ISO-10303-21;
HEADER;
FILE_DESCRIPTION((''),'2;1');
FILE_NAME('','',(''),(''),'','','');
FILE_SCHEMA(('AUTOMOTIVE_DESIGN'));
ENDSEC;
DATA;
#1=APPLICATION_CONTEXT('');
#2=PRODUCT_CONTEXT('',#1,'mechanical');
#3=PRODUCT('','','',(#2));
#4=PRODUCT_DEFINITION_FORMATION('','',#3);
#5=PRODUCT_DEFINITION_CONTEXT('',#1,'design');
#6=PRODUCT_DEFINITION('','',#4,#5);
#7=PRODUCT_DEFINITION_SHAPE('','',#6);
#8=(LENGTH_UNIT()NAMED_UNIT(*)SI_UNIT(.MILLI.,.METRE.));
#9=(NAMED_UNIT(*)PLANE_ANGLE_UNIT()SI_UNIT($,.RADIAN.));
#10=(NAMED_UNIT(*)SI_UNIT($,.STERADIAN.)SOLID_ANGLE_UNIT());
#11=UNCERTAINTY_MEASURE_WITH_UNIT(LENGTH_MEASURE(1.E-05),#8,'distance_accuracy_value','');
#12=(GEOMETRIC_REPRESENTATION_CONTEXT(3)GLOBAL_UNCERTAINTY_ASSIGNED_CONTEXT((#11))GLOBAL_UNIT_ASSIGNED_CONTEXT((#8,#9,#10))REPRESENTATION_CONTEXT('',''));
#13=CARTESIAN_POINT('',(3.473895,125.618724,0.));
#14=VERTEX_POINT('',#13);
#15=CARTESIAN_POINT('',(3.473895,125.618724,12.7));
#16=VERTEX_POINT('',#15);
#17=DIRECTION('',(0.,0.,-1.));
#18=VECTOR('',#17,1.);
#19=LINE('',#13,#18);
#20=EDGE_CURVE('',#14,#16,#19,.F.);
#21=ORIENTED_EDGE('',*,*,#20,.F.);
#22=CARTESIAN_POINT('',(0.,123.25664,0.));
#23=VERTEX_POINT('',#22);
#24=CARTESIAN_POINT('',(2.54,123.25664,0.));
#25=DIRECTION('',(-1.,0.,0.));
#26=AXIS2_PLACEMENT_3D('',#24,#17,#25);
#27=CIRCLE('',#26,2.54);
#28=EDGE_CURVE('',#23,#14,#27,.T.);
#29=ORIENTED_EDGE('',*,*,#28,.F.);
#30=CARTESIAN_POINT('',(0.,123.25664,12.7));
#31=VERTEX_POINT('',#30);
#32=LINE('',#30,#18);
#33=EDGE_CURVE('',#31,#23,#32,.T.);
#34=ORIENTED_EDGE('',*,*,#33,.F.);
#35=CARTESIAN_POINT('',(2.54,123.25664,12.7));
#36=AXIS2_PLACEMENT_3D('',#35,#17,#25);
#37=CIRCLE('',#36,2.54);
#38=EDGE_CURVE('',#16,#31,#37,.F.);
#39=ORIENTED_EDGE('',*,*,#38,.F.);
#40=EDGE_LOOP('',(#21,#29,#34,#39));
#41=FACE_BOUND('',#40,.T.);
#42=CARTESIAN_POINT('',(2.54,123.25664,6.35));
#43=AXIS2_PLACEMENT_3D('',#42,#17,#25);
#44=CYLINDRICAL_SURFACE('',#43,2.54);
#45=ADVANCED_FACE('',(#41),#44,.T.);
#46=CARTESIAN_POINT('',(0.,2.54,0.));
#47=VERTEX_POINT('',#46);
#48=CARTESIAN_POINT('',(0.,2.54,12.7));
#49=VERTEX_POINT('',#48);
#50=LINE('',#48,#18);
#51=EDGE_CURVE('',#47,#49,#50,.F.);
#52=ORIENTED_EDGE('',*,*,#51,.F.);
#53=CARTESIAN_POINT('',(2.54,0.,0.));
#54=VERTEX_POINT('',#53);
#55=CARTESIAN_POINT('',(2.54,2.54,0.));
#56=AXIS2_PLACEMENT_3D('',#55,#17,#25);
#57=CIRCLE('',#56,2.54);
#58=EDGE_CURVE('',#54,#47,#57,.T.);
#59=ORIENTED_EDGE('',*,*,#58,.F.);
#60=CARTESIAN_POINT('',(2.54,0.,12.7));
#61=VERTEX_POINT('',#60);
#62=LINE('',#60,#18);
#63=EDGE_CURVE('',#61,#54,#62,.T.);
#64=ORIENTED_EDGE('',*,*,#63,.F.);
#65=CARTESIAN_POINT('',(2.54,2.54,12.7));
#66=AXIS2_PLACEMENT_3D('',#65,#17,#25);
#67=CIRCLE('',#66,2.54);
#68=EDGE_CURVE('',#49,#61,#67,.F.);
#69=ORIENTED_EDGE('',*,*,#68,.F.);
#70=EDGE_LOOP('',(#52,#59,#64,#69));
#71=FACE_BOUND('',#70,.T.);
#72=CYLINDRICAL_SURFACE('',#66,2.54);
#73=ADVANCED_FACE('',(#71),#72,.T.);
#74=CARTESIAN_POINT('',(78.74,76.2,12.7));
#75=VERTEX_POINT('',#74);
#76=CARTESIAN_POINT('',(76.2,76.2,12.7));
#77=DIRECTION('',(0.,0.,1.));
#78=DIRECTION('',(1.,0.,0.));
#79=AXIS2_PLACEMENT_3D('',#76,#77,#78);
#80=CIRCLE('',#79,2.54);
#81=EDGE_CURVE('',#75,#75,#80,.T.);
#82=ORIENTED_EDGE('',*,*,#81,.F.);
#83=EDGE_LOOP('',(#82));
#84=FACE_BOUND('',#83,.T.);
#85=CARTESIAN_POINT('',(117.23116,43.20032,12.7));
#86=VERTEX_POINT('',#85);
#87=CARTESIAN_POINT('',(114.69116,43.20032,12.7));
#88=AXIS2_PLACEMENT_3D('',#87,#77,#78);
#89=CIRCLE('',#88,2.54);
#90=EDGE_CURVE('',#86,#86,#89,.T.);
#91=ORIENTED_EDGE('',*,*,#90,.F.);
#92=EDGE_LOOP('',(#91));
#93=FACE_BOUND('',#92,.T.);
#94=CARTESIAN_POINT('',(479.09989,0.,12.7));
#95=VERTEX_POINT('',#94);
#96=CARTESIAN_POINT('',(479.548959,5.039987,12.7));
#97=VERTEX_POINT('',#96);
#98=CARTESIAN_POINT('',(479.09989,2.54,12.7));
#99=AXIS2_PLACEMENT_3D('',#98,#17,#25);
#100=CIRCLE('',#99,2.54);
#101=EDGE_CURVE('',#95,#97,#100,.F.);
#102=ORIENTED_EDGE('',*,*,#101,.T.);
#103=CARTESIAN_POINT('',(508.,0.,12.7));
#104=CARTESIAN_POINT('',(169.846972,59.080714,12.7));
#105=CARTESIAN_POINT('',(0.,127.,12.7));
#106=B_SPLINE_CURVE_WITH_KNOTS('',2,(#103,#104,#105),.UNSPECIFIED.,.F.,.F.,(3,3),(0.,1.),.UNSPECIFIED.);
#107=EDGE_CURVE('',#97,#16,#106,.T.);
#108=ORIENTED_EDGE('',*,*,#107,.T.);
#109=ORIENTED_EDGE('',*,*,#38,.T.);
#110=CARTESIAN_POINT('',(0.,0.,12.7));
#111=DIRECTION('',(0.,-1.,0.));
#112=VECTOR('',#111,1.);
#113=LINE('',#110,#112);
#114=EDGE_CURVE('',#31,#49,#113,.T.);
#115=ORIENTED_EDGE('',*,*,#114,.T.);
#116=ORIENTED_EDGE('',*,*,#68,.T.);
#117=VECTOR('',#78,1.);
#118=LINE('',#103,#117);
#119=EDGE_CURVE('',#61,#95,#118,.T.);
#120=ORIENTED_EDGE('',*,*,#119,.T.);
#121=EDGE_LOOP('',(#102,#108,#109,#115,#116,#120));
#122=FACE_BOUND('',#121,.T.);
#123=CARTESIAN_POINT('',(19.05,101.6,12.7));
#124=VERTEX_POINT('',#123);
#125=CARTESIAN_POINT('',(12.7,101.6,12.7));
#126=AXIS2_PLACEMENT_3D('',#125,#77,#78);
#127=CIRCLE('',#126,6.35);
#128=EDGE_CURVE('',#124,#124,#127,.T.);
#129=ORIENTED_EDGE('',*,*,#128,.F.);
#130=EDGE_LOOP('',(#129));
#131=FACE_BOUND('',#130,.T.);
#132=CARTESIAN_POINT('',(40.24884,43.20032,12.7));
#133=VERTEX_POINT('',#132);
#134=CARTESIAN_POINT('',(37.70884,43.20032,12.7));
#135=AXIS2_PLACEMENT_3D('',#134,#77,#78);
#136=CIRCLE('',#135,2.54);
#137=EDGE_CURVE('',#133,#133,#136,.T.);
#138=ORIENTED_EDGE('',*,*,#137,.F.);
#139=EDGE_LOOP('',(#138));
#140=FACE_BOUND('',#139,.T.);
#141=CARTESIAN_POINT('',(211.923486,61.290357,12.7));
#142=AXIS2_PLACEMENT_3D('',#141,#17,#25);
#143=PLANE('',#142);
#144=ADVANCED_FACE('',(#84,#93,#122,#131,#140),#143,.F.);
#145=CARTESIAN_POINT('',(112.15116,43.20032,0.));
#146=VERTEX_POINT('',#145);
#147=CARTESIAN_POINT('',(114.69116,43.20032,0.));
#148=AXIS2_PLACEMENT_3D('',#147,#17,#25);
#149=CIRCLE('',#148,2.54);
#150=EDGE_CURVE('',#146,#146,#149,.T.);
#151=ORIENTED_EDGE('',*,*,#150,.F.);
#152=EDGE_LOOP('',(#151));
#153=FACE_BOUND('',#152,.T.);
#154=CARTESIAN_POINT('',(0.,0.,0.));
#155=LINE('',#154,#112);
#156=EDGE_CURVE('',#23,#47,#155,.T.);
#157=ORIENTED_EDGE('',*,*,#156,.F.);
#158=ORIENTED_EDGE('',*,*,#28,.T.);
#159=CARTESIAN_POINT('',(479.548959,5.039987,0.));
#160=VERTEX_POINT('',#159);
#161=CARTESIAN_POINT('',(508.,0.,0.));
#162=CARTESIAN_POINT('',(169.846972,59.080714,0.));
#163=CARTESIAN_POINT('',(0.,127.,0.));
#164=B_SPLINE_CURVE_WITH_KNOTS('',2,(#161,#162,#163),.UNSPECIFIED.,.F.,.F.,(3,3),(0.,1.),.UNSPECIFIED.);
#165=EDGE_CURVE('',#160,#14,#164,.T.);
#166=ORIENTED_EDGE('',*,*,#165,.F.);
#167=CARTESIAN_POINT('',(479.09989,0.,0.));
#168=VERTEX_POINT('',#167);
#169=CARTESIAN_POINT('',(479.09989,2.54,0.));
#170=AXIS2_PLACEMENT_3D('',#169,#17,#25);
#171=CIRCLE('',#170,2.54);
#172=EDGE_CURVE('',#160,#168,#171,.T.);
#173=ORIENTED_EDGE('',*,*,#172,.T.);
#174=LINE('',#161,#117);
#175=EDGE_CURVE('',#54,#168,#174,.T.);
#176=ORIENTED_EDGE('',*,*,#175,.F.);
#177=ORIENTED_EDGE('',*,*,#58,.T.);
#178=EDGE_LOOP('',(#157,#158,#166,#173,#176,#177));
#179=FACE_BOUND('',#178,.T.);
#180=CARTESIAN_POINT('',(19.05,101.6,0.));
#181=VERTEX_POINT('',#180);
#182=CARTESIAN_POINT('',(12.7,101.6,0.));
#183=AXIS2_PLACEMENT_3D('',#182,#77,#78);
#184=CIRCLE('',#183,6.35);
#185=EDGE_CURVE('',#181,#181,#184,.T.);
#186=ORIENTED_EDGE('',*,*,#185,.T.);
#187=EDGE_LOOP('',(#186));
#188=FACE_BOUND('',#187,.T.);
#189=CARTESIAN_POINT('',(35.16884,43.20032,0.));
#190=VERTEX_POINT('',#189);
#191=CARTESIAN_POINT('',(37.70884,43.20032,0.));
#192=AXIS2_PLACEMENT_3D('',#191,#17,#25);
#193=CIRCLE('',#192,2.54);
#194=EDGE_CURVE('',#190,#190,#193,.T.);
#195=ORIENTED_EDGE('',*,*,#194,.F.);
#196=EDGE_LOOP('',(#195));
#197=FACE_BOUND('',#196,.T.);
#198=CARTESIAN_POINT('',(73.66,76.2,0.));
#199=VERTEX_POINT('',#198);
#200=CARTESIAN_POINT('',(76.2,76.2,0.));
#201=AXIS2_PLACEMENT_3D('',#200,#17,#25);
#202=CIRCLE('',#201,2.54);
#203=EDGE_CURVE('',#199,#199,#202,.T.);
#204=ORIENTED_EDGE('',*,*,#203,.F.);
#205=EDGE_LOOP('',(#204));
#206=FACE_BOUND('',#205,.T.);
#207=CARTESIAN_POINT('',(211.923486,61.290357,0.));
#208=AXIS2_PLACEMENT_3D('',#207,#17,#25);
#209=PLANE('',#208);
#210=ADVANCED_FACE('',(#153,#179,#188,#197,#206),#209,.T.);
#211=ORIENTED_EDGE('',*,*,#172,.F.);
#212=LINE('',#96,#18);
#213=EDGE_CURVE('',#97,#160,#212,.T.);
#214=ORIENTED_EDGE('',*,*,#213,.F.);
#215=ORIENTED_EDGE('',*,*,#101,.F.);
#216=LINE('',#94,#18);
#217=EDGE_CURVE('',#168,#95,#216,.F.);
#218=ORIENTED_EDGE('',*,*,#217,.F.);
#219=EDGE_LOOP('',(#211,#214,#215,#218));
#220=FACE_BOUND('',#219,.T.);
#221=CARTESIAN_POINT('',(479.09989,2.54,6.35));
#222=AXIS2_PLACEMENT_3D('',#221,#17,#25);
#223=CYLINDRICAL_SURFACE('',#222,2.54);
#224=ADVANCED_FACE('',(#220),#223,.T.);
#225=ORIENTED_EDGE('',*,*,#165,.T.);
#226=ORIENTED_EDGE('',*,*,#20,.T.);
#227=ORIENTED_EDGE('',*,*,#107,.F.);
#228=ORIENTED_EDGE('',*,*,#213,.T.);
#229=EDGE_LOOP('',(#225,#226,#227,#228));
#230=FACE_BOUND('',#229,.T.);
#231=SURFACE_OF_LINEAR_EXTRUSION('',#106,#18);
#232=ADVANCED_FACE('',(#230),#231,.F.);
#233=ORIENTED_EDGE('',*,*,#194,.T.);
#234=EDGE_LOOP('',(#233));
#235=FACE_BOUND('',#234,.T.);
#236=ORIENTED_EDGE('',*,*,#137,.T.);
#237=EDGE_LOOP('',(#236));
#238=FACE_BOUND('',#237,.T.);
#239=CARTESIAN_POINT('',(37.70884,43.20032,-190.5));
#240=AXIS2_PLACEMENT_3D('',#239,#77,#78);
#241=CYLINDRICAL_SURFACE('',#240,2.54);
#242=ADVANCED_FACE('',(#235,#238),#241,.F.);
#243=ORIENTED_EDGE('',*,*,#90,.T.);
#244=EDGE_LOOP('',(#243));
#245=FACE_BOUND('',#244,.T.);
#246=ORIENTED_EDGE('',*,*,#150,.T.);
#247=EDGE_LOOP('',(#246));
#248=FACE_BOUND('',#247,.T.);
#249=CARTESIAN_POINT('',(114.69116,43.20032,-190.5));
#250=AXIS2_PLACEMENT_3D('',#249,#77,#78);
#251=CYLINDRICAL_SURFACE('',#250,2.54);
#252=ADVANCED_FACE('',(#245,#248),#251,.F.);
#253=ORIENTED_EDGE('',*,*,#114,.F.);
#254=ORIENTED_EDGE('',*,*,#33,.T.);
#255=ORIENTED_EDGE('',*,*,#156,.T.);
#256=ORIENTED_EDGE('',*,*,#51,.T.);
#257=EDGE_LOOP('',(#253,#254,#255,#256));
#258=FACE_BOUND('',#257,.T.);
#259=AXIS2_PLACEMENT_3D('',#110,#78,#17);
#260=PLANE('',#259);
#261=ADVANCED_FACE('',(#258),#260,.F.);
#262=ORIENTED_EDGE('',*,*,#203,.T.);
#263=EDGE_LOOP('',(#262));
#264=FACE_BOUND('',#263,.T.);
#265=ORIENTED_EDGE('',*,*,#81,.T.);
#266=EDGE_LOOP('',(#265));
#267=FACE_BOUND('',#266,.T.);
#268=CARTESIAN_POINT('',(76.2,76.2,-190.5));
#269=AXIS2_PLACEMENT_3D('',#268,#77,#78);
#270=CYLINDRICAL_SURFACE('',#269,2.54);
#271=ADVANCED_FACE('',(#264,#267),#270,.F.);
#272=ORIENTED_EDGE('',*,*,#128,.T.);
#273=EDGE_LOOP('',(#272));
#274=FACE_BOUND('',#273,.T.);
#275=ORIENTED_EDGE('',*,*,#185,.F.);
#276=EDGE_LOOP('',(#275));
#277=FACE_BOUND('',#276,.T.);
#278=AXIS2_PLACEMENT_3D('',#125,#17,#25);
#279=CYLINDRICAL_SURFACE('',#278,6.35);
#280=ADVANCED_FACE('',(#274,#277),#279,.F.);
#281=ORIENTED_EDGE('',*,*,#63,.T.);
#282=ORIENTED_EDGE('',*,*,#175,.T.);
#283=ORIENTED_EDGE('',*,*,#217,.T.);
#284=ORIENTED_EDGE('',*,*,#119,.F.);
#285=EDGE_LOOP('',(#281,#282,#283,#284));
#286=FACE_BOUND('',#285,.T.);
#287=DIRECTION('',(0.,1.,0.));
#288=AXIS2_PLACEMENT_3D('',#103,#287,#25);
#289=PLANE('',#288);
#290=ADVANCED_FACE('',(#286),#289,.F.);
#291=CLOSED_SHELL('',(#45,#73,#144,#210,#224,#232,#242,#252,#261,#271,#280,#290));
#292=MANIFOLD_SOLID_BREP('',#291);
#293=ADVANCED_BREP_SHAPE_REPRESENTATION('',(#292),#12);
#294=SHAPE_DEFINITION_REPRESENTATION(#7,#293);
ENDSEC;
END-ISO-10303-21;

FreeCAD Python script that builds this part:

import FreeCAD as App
import Part
import Sketcher
from FreeCAD import Vector
Q = App.Units.Quantity


def edges_at(feature, points):
    """Names of the edges that pass closest to the given points."""
    edges = feature.Shape.Edges
    near = lambda p: min(range(len(edges)), key=lambda i: edges[i].distToShape(Part.Vertex(*p))[0])
    return sorted({f"Edge{near(p) + 1}" for p in points})

doc = App.newDocument("Part")
body = doc.addObject("PartDesign::Body", "Body")

# Sketch on XY plane
sketch1 = doc.addObject("Sketcher::SketchObject", "Sketch")
body.addObject(sketch1)
sketch1.AttachmentSupport = (doc.XY_Plane, [""])
sketch1.MapMode = "FlatFace"
sketch1.addGeometry(Part.LineSegment(Vector(0, 127, 0), Vector(0, 0, 0)), False)
sketch1.addGeometry(Part.LineSegment(Vector(0, 0, 0), Vector(508, 0, 0)), False)
sketch1.addGeometry(Part.BSplineCurve([Vector(0, 127, 0), Vector(169.846972, 59.080714, 0), Vector(508, 0, 0)], [3, 3], [0, 1], False, 2, [1, 1, 1], False), False)
sketch1.addGeometry(Part.Circle(Vector(12.7, 101.6, 0), Vector(0, 0, 1), 6.35), False)
sketch1.addConstraint(Sketcher.Constraint("Block", 2))
sketch1.addConstraint(Sketcher.Constraint("Coincident", 0, 2, 1, 1))
sketch1.addConstraint(Sketcher.Constraint("Coincident", 1, 2, 2, 2))
sketch1.addConstraint(Sketcher.Constraint("Coincident", 2, 1, 0, 1))
sketch1.addConstraint(Sketcher.Constraint("Vertical", 0))
sketch1.addConstraint(Sketcher.Constraint("Horizontal", 1))
sketch1.addConstraint(Sketcher.Constraint("Diameter", 3, Q("0.5 in")))
sketch1.addConstraint(Sketcher.Constraint("DistanceY", -1, 1, 3, 3, Q("4 in")))
sketch1.addConstraint(Sketcher.Constraint("DistanceX", -1, 1, 3, 3, Q("0.5 in")))
pad1 = doc.addObject("PartDesign::Pad", "Pad")
body.addObject(pad1)
pad1.Profile = sketch1
pad1.Length = Q("0.5 in")
doc.recompute()

fillet = doc.addObject("PartDesign::Fillet", "Fillet")
body.addObject(fillet)
fillet.Base = (pad1, edges_at(pad1, [(0, 127, 6.35)]))
fillet.Radius = Q("0.1 in")
doc.recompute()

fillet2 = doc.addObject("PartDesign::Fillet", "Fillet001")
body.addObject(fillet2)
fillet2.Base = (fillet, edges_at(fillet, [(0, 0, 6.35), (508, 0, 6.35)]))
fillet2.Radius = Q("0.1 in")

# Sketch on XY plane
sketch2 = doc.addObject("Sketcher::SketchObject", "Sketch001")
body.addObject(sketch2)
sketch2.AttachmentSupport = (doc.XY_Plane, [""])
sketch2.MapMode = "FlatFace"
sketch2.AttachmentOffset = App.Placement(Vector(0, 0, 0.5 * 25.4), App.Rotation())
sketch2.addGeometry(Part.Circle(Vector(76.2, 76.2, 0), Vector(0, 0, 1), 2.54), False)
sketch2.addGeometry(Part.Circle(Vector(37.70884, 43.20032, 0), Vector(0, 0, 1), 2.54), False)
sketch2.addGeometry(Part.Circle(Vector(114.69116, 43.20032, 0), Vector(0, 0, 1), 2.54), False)
sketch2.addConstraint(Sketcher.Constraint("Equal", 0, 1))
sketch2.addConstraint(Sketcher.Constraint("Equal", 1, 2))
sketch2.addConstraint(Sketcher.Constraint("Horizontal", 1, 3, 2, 3))
sketch2.addConstraint(Sketcher.Constraint("Diameter", 0, Q("0.2 in")))
sketch2.addConstraint(Sketcher.Constraint("DistanceX", -1, 1, 0, 3, Q("3 in")))
sketch2.addConstraint(Sketcher.Constraint("DistanceY", -1, 1, 0, 3, Q("3 in")))
sketch2.addConstraint(Sketcher.Constraint("DistanceX", -1, 1, 1, 3, Q("1.4846 in")))
sketch2.addConstraint(Sketcher.Constraint("DistanceY", -1, 1, 1, 3, Q("1.7008 in")))
sketch2.addConstraint(Sketcher.Constraint("DistanceX", -1, 1, 2, 3, Q("4.5154 in")))
pocket1 = doc.addObject("PartDesign::Pocket", "Pocket")
body.addObject(pocket1)
pocket1.Profile = sketch2
pocket1.Length = Q("8 in")

doc.recompute()
